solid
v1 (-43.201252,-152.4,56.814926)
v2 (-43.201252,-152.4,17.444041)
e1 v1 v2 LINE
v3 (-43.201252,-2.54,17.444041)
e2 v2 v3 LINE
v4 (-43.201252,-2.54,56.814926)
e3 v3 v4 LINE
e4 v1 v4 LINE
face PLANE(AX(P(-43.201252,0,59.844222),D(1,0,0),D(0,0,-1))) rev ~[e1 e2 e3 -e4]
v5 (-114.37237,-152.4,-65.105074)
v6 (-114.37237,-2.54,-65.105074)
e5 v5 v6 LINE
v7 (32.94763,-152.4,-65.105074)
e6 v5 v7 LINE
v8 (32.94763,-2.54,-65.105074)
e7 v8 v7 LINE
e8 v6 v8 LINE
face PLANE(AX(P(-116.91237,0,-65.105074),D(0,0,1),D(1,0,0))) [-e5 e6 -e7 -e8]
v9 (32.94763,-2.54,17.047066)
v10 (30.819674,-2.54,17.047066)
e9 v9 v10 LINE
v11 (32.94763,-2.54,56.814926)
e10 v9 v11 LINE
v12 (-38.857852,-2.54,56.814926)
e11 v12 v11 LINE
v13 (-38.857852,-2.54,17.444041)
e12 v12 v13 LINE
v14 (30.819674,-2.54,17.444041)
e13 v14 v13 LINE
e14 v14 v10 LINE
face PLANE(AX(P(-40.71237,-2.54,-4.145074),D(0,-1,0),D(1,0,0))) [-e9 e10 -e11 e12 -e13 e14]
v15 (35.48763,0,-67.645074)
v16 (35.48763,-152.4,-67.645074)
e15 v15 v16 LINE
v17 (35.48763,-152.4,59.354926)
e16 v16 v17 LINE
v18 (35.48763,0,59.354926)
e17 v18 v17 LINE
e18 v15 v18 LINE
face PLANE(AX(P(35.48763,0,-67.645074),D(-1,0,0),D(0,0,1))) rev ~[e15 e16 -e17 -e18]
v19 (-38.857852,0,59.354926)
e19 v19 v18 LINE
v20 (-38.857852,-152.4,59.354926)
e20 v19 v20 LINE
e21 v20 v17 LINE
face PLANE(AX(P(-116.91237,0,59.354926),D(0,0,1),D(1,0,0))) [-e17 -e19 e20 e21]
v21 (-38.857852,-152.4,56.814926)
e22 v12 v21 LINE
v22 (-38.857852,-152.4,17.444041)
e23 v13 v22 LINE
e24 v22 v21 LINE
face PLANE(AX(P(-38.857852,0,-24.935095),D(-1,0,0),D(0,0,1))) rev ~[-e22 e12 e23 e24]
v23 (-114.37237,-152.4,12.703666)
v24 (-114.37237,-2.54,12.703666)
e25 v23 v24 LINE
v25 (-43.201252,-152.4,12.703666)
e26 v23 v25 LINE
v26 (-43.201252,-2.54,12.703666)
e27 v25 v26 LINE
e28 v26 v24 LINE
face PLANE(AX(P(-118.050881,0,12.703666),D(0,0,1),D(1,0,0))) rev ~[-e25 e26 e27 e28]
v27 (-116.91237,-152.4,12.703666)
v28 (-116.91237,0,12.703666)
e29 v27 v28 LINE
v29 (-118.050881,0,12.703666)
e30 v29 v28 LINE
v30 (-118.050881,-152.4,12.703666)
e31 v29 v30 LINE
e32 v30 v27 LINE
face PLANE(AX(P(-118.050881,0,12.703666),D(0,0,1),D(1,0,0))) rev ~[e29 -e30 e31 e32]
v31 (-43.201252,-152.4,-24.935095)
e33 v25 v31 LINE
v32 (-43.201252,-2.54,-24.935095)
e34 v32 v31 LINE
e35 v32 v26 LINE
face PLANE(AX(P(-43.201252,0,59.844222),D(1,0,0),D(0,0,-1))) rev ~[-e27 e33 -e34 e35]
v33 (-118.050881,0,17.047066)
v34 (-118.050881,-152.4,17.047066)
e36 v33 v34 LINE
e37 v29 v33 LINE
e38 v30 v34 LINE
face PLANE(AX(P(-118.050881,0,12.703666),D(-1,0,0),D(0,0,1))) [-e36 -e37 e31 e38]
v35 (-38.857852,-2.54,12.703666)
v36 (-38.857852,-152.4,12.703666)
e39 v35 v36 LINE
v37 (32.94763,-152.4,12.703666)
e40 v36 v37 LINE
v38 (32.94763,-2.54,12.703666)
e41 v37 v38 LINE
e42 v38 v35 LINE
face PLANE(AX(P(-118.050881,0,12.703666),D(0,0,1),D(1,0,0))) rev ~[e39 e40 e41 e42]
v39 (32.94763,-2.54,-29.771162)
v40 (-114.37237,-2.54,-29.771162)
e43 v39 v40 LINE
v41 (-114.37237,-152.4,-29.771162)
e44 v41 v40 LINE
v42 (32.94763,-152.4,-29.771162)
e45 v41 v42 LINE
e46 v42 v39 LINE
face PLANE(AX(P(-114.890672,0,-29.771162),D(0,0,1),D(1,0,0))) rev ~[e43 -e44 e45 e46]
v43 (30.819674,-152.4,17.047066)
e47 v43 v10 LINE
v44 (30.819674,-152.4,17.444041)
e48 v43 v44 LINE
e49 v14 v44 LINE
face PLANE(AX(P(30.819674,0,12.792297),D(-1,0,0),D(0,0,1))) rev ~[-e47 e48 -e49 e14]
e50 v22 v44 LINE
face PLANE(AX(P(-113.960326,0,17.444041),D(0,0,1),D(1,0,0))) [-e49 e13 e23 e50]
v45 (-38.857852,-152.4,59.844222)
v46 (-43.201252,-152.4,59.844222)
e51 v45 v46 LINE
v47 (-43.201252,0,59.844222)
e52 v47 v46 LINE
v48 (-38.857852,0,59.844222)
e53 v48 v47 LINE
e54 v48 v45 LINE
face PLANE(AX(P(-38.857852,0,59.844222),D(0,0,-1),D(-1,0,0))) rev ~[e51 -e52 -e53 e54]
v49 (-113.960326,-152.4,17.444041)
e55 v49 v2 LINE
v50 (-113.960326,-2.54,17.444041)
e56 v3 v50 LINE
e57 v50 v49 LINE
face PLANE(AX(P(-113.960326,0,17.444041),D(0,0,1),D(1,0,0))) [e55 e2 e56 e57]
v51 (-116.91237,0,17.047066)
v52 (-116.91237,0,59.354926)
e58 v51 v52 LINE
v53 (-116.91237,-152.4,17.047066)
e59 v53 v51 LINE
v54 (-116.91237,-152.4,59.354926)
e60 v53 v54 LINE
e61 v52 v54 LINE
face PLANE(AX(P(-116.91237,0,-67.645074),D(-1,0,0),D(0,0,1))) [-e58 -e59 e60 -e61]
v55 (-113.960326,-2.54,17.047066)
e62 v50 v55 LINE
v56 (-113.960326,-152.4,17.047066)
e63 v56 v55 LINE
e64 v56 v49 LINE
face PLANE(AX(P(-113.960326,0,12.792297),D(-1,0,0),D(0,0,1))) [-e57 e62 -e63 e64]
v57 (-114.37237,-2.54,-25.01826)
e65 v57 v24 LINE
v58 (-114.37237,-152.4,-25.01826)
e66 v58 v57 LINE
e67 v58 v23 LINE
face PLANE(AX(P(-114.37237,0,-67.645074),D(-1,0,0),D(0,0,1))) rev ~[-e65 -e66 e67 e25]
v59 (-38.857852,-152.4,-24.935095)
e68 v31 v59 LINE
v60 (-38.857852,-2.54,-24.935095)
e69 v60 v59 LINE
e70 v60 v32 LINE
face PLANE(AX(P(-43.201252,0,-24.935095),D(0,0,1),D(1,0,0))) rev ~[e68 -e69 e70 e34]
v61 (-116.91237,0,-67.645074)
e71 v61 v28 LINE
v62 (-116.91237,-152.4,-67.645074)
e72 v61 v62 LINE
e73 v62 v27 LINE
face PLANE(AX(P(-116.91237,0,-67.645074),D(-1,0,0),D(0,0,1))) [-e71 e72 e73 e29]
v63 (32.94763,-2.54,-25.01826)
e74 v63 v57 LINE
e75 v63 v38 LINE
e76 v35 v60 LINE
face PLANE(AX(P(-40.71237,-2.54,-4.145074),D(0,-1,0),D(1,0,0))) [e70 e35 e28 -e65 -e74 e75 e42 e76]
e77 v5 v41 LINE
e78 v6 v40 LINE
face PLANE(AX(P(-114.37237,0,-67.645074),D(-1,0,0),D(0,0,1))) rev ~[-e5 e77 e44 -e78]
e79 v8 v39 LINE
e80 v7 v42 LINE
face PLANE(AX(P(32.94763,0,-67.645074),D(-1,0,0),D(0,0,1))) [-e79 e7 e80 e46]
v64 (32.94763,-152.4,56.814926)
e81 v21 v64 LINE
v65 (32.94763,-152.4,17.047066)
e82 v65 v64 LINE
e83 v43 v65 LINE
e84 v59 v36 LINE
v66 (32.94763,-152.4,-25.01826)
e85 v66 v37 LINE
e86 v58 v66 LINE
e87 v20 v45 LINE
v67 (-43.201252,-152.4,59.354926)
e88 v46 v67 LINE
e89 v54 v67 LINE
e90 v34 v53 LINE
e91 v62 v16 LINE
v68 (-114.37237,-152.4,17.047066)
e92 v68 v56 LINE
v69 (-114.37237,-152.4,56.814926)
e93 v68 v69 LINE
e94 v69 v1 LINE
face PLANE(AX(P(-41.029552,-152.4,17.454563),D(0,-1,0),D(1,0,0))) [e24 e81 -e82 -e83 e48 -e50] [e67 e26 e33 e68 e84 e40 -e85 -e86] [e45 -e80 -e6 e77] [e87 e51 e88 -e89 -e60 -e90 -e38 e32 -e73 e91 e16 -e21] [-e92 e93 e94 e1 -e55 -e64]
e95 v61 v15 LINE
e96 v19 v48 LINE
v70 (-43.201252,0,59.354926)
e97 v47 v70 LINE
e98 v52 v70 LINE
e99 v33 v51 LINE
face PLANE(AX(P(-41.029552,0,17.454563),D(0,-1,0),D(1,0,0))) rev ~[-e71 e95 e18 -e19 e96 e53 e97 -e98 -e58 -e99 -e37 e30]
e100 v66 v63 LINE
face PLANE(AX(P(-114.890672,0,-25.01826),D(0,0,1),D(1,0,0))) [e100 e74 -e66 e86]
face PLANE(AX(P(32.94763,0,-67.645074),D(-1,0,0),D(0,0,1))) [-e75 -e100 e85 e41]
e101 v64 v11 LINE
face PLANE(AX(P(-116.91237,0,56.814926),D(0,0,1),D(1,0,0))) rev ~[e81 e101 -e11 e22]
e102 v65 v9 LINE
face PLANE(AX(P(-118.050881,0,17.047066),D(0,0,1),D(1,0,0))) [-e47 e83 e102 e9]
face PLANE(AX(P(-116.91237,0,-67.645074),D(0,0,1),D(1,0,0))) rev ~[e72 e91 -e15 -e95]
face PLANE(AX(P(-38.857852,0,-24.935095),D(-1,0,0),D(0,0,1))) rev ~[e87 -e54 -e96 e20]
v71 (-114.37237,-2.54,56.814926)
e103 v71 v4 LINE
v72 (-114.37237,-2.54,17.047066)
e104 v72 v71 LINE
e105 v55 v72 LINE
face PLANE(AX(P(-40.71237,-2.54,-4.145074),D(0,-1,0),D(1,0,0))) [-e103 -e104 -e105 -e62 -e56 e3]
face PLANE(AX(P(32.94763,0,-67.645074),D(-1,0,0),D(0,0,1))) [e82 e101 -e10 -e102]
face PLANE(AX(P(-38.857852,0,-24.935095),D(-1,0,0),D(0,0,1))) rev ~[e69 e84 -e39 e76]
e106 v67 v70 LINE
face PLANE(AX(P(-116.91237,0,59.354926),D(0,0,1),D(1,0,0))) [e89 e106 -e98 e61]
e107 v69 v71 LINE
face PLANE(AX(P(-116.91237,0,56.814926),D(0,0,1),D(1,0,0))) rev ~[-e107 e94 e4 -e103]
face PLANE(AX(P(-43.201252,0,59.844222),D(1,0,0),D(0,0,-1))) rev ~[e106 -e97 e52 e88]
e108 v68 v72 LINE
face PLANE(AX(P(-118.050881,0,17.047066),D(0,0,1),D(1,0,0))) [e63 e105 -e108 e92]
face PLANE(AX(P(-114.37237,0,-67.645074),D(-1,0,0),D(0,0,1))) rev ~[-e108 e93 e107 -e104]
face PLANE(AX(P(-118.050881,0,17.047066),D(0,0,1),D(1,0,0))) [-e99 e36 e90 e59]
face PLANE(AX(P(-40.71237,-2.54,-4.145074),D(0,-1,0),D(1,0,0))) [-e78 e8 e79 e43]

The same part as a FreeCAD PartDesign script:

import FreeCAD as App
import Part
import Sketcher
from FreeCAD import Vector
Q = App.Units.Quantity


def faces_at(feature, points):
    """Names of the faces that lie closest to the given points."""
    faces = feature.Shape.Faces
    near = lambda p: min(range(len(faces)), key=lambda i: faces[i].distToShape(Part.Vertex(*p))[0])
    return sorted({f"Face{near(p) + 1}" for p in points})

doc = App.newDocument("Part")
body = doc.addObject("PartDesign::Body", "Body")

sketch1 = body.newObject("Sketcher::SketchObject", "Sketch")
sketch1.AttachmentSupport = (doc.getObject("XZ_Plane"), [""])
sketch1.MapMode = "FlatFace"
sketch1.addGeometry(Part.LineSegment(Vector(-117, 59, 0), Vector(-117, -68, 0)), False)
sketch1.addGeometry(Part.LineSegment(Vector(-117, -68, 0), Vector(35, -68, 0)), False)
sketch1.addGeometry(Part.LineSegment(Vector(35, -68, 0), Vector(35, 59, 0)), False)
sketch1.addGeometry(Part.LineSegment(Vector(35, 59, 0), Vector(-117, 59, 0)), False)
sketch1.addConstraint(Sketcher.Constraint("Coincident", 0, 2, 1, 1))
sketch1.addConstraint(Sketcher.Constraint("Coincident", 1, 2, 2, 1))
sketch1.addConstraint(Sketcher.Constraint("Coincident", 2, 2, 3, 1))
sketch1.addConstraint(Sketcher.Constraint("Coincident", 3, 2, 0, 1))
sketch1.addConstraint(Sketcher.Constraint("Vertical", 0))
sketch1.addConstraint(Sketcher.Constraint("Horizontal", 1))
sketch1.addConstraint(Sketcher.Constraint("Vertical", 2))
sketch1.addConstraint(Sketcher.Constraint("Horizontal", 3))
sketch1.addConstraint(Sketcher.Constraint("DistanceX", 1, 1, 1, 2, Q("6 in")))
sketch1.addConstraint(Sketcher.Constraint("DistanceY", 0, 2, 0, 1, Q("5 in")))
sketch1.addConstraint(Sketcher.Constraint("DistanceX", 0, 2, -1, 1, 116.91237))
sketch1.addConstraint(Sketcher.Constraint("DistanceY", 0, 2, -1, 1, 67.645074))
pad1 = body.newObject("PartDesign::Pad", "Pad")
pad1.Profile = sketch1
pad1.Length = Q("6 in")
doc.recompute()

thickness = body.newObject("PartDesign::Thickness", "Thickness")
thickness.Base = (pad1, faces_at(pad1, [(-40.712, -152.4, -4.145)]))
thickness.Value = Q("0.1 in")
thickness.Reversed = True
thickness.Join = "Arc"

sketch2 = body.newObject("Sketcher::SketchObject", "Sketch001")
sketch2.AttachmentSupport = (doc.getObject("XZ_Plane"), [""])
sketch2.MapMode = "FlatFace"
sketch2.addGeometry(Part.LineSegment(Vector(-114, 17.4, 0), Vector(-114, 12.8, 0)), False)
sketch2.addGeometry(Part.LineSegment(Vector(-114, 12.8, 0), Vector(30.8, 12.8, 0)), False)
sketch2.addGeometry(Part.LineSegment(Vector(30.8, 12.8, 0), Vector(30.8, 17.4, 0)), False)
sketch2.addGeometry(Part.LineSegment(Vector(30.8, 17.4, 0), Vector(-114, 17.4, 0)), False)
sketch2.addGeometry(Part.LineSegment(Vector(-114.9, -25, 0), Vector(-114.9, -29.8, 0)), False)
sketch2.addGeometry(Part.LineSegment(Vector(-114.9, -29.8, 0), Vector(35, -29.8, 0)), False)
sketch2.addGeometry(Part.LineSegment(Vector(35, -29.8, 0), Vector(35, -25, 0)), False)
sketch2.addGeometry(Part.LineSegment(Vector(35, -25, 0), Vector(-114.9, -25, 0)), False)
sketch2.addConstraint(Sketcher.Constraint("Coincident", 0, 2, 1, 1))
sketch2.addConstraint(Sketcher.Constraint("Coincident", 1, 2, 2, 1))
sketch2.addConstraint(Sketcher.Constraint("Coincident", 2, 2, 3, 1))
sketch2.addConstraint(Sketcher.Constraint("Coincident", 3, 2, 0, 1))
sketch2.addConstraint(Sketcher.Constraint("Coincident", 4, 2, 5, 1))
sketch2.addConstraint(Sketcher.Constraint("Coincident", 5, 2, 6, 1))
sketch2.addConstraint(Sketcher.Constraint("Coincident", 6, 2, 7, 1))
sketch2.addConstraint(Sketcher.Constraint("Coincident", 7, 2, 4, 1))
sketch2.addConstraint(Sketcher.Constraint("Vertical", 0))
sketch2.addConstraint(Sketcher.Constraint("Horizontal", 1))
sketch2.addConstraint(Sketcher.Constraint("Vertical", 2))
sketch2.addConstraint(Sketcher.Constraint("Horizontal", 3))
sketch2.addConstraint(Sketcher.Constraint("Vertical", 4))
sketch2.addConstraint(Sketcher.Constraint("Horizontal", 5))
sketch2.addConstraint(Sketcher.Constraint("Vertical", 6))
sketch2.addConstraint(Sketcher.Constraint("Horizontal", 7))
sketch2.addConstraint(Sketcher.Constraint("DistanceX", 1, 1, 1, 2, Q("5.7 in")))
sketch2.addConstraint(Sketcher.Constraint("DistanceX", 5, 1, 5, 2, Q("5.9 in")))
sketch2.addConstraint(Sketcher.Constraint("DistanceY", 4, 2, 4, 1, 4.752902))
sketch2.addConstraint(Sketcher.Constraint("DistanceY", 6, 2, 2, 2, 42.462301))
sketch2.addConstraint(Sketcher.Constraint("DistanceY", 0, 2, 0, 1, 4.651744))
sketch2.addConstraint(Sketcher.Constraint("DistanceY", -1, 1, 2, 2, 17.444041))
sketch2.addConstraint(Sketcher.Constraint("DistanceX", 4, 2, -1, 1, 114.890672))
sketch2.addConstraint(Sketcher.Constraint("DistanceX", 0, 2, -1, 1, 113.960326))
pad2 = body.newObject("PartDesign::Pad", "Pad001")
pad2.Profile = sketch2
pad2.Length = Q("6 in")

sketch3 = body.newObject("Sketcher::SketchObject", "Sketch002")
sketch3.AttachmentSupport = (doc.getObject("XZ_Plane"), [""])
sketch3.MapMode = "FlatFace"
sketch3.addGeometry(Part.LineSegment(Vector(-118.1, 17, 0), Vector(-118.1, 12.7, 0)), False)
sketch3.addGeometry(Part.LineSegment(Vector(-118.1, 12.7, 0), Vector(34.3, 12.7, 0)), False)
sketch3.addGeometry(Part.LineSegment(Vector(34.3, 12.7, 0), Vector(34.3, 17, 0)), False)
sketch3.addGeometry(Part.LineSegment(Vector(34.3, 17, 0), Vector(-118.1, 17, 0)), False)
sketch3.addConstraint(Sketcher.Constraint("Coincident", 0, 2, 1, 1))
sketch3.addConstraint(Sketcher.Constraint("Coincident", 1, 2, 2, 1))
sketch3.addConstraint(Sketcher.Constraint("Coincident", 2, 2, 3, 1))
sketch3.addConstraint(Sketcher.Constraint("Coincident", 3, 2, 0, 1))
sketch3.addConstraint(Sketcher.Constraint("Vertical", 0))
sketch3.addConstraint(Sketcher.Constraint("Horizontal", 1))
sketch3.addConstraint(Sketcher.Constraint("Vertical", 2))
sketch3.addConstraint(Sketcher.Constraint("Horizontal", 3))
sketch3.addConstraint(Sketcher.Constraint("DistanceX", 1, 1, 1, 2, Q("6 in")))
sketch3.addConstraint(Sketcher.Constraint("DistanceY", 0, 2, 0, 1, Q("0.171 in")))
sketch3.addConstraint(Sketcher.Constraint("DistanceX", 0, 2, -1, 1, 118.050881))
sketch3.addConstraint(Sketcher.Constraint("DistanceY", -1, 1, 0, 2, 12.703666))
pad3 = body.newObject("PartDesign::Pad", "Pad002")
pad3.Profile = sketch3
pad3.Length = Q("6 in")

sketch4 = body.newObject("Sketcher::SketchObject", "Sketch003")
sketch4.AttachmentSupport = (doc.getObject("XZ_Plane"), [""])
sketch4.MapMode = "FlatFace"
sketch4.addGeometry(Part.LineSegment(Vector(-38.9, 59.8, 0), Vector(-43.2, 59.8, 0)), False)
sketch4.addGeometry(Part.LineSegment(Vector(-43.2, 59.8, 0), Vector(-43.2, -24.9, 0)), False)
sketch4.addGeometry(Part.LineSegment(Vector(-43.2, -24.9, 0), Vector(-38.9, -24.9, 0)), False)
sketch4.addGeometry(Part.LineSegment(Vector(-38.9, -24.9, 0), Vector(-38.9, 59.8, 0)), False)
sketch4.addConstraint(Sketcher.Constraint("Coincident", 0, 2, 1, 1))
sketch4.addConstraint(Sketcher.Constraint("Coincident", 1, 2, 2, 1))
sketch4.addConstraint(Sketcher.Constraint("Coincident", 2, 2, 3, 1))
sketch4.addConstraint(Sketcher.Constraint("Coincident", 3, 2, 0, 1))
sketch4.addConstraint(Sketcher.Constraint("Horizontal", 0))
sketch4.addConstraint(Sketcher.Constraint("Vertical", 1))
sketch4.addConstraint(Sketcher.Constraint("Horizontal", 2))
sketch4.addConstraint(Sketcher.Constraint("Vertical", 3))
sketch4.addConstraint(Sketcher.Constraint("DistanceX", 0, 2, 0, 1, Q("0.171 in")))
sketch4.addConstraint(Sketcher.Constraint("DistanceY", 1, 2, 1, 1, 84.779317))
sketch4.addConstraint(Sketcher.Constraint("DistanceX", 0, 2, -1, 1, 43.201252))
sketch4.addConstraint(Sketcher.Constraint("DistanceY", -1, 1, 0, 2, 59.844222))
pad4 = body.newObject("PartDesign::Pad", "Pad003")
pad4.Profile = sketch4
pad4.Length = Q("6 in")

doc.recompute()
